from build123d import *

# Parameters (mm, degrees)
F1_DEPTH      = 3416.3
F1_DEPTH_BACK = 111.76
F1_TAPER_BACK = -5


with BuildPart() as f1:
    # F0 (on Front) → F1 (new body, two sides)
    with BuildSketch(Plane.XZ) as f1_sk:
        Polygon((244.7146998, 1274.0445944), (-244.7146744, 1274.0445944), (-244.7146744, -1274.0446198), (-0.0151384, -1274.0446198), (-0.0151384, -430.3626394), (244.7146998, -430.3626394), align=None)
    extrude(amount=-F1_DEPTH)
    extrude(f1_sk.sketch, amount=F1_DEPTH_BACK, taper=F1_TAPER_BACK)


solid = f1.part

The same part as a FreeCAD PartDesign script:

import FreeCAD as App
import Part
import Sketcher
Q = App.Units.Quantity


def add_polygon(sketch, points):
    """Adds a closed chain of lines whose ends are joined by coincident constraints."""
    first, n = sketch.GeometryCount, len(points)
    for a, b in zip(points, points[1:] + points[:1]):
        sketch.addGeometry(Part.LineSegment(App.Vector(*a, 0), App.Vector(*b, 0)), False)
    for i in range(n):
        sketch.addConstraint(Sketcher.Constraint("Coincident", first + i, 2, first + (i + 1) % n, 1))

doc = App.newDocument("Part")
params = doc.addObject("Spreadsheet::Sheet", "Params")
for row, (alias, value) in enumerate([
    ("pad1_length", "134.5 in"),
    ("pad2_length", "4.4 in"),
    ("pad2_taper", "5 deg"),
], start=1):
    params.set(f"A{row}", alias)
    params.set(f"B{row}", "=" + value)
    params.setAlias(f"B{row}", alias)

body = doc.addObject("PartDesign::Body", "Body")

sketch1 = body.newObject("Sketcher::SketchObject", "Sketch")
sketch1.AttachmentSupport = (doc.getObject("XZ_Plane"), [""])
sketch1.MapMode = "FlatFace"
add_polygon(sketch1, [(245, 1274), (-245, 1274), (-245, -1274), (0, -1274), (0, -430), (245, -430)])
sketch1.addConstraint([
    Sketcher.Constraint("Horizontal", 0),
    Sketcher.Constraint("Vertical", 1),
    Sketcher.Constraint("Horizontal", 2),
    Sketcher.Constraint("Vertical", 3),
    Sketcher.Constraint("Horizontal", 4),
    Sketcher.Constraint("Vertical", 5),
    Sketcher.Constraint("DistanceX", 4, 1, 4, 2, Q("244.729838 mm")),
    Sketcher.Constraint("DistanceY", 3, 1, 3, 2, Q("843.68198 mm")),
    Sketcher.Constraint("DistanceX", -1, 1, 4, 2, Q("244.7147 mm")),
    Sketcher.Constraint("DistanceX", 0, 2, 0, 1, Q("489.429374 mm")),
    Sketcher.Constraint("DistanceY", 1, 2, 1, 1, Q("2548.089214 mm")),
    Sketcher.Constraint("DistanceY", 1, 2, -1, 1, Q("1274.04462 mm")),
])
pad1 = body.newObject("PartDesign::Pad", "Pad")
pad1.Profile = sketch1
pad1.setExpression("Length", "Params.pad1_length")
pad1.Reversed = True
pad2 = body.newObject("PartDesign::Pad", "Pad001")
pad2.Profile = sketch1
pad2.setExpression("Length", "Params.pad2_length")
pad2.setExpression("TaperAngle", "Params.pad2_taper")

doc.recompute()
